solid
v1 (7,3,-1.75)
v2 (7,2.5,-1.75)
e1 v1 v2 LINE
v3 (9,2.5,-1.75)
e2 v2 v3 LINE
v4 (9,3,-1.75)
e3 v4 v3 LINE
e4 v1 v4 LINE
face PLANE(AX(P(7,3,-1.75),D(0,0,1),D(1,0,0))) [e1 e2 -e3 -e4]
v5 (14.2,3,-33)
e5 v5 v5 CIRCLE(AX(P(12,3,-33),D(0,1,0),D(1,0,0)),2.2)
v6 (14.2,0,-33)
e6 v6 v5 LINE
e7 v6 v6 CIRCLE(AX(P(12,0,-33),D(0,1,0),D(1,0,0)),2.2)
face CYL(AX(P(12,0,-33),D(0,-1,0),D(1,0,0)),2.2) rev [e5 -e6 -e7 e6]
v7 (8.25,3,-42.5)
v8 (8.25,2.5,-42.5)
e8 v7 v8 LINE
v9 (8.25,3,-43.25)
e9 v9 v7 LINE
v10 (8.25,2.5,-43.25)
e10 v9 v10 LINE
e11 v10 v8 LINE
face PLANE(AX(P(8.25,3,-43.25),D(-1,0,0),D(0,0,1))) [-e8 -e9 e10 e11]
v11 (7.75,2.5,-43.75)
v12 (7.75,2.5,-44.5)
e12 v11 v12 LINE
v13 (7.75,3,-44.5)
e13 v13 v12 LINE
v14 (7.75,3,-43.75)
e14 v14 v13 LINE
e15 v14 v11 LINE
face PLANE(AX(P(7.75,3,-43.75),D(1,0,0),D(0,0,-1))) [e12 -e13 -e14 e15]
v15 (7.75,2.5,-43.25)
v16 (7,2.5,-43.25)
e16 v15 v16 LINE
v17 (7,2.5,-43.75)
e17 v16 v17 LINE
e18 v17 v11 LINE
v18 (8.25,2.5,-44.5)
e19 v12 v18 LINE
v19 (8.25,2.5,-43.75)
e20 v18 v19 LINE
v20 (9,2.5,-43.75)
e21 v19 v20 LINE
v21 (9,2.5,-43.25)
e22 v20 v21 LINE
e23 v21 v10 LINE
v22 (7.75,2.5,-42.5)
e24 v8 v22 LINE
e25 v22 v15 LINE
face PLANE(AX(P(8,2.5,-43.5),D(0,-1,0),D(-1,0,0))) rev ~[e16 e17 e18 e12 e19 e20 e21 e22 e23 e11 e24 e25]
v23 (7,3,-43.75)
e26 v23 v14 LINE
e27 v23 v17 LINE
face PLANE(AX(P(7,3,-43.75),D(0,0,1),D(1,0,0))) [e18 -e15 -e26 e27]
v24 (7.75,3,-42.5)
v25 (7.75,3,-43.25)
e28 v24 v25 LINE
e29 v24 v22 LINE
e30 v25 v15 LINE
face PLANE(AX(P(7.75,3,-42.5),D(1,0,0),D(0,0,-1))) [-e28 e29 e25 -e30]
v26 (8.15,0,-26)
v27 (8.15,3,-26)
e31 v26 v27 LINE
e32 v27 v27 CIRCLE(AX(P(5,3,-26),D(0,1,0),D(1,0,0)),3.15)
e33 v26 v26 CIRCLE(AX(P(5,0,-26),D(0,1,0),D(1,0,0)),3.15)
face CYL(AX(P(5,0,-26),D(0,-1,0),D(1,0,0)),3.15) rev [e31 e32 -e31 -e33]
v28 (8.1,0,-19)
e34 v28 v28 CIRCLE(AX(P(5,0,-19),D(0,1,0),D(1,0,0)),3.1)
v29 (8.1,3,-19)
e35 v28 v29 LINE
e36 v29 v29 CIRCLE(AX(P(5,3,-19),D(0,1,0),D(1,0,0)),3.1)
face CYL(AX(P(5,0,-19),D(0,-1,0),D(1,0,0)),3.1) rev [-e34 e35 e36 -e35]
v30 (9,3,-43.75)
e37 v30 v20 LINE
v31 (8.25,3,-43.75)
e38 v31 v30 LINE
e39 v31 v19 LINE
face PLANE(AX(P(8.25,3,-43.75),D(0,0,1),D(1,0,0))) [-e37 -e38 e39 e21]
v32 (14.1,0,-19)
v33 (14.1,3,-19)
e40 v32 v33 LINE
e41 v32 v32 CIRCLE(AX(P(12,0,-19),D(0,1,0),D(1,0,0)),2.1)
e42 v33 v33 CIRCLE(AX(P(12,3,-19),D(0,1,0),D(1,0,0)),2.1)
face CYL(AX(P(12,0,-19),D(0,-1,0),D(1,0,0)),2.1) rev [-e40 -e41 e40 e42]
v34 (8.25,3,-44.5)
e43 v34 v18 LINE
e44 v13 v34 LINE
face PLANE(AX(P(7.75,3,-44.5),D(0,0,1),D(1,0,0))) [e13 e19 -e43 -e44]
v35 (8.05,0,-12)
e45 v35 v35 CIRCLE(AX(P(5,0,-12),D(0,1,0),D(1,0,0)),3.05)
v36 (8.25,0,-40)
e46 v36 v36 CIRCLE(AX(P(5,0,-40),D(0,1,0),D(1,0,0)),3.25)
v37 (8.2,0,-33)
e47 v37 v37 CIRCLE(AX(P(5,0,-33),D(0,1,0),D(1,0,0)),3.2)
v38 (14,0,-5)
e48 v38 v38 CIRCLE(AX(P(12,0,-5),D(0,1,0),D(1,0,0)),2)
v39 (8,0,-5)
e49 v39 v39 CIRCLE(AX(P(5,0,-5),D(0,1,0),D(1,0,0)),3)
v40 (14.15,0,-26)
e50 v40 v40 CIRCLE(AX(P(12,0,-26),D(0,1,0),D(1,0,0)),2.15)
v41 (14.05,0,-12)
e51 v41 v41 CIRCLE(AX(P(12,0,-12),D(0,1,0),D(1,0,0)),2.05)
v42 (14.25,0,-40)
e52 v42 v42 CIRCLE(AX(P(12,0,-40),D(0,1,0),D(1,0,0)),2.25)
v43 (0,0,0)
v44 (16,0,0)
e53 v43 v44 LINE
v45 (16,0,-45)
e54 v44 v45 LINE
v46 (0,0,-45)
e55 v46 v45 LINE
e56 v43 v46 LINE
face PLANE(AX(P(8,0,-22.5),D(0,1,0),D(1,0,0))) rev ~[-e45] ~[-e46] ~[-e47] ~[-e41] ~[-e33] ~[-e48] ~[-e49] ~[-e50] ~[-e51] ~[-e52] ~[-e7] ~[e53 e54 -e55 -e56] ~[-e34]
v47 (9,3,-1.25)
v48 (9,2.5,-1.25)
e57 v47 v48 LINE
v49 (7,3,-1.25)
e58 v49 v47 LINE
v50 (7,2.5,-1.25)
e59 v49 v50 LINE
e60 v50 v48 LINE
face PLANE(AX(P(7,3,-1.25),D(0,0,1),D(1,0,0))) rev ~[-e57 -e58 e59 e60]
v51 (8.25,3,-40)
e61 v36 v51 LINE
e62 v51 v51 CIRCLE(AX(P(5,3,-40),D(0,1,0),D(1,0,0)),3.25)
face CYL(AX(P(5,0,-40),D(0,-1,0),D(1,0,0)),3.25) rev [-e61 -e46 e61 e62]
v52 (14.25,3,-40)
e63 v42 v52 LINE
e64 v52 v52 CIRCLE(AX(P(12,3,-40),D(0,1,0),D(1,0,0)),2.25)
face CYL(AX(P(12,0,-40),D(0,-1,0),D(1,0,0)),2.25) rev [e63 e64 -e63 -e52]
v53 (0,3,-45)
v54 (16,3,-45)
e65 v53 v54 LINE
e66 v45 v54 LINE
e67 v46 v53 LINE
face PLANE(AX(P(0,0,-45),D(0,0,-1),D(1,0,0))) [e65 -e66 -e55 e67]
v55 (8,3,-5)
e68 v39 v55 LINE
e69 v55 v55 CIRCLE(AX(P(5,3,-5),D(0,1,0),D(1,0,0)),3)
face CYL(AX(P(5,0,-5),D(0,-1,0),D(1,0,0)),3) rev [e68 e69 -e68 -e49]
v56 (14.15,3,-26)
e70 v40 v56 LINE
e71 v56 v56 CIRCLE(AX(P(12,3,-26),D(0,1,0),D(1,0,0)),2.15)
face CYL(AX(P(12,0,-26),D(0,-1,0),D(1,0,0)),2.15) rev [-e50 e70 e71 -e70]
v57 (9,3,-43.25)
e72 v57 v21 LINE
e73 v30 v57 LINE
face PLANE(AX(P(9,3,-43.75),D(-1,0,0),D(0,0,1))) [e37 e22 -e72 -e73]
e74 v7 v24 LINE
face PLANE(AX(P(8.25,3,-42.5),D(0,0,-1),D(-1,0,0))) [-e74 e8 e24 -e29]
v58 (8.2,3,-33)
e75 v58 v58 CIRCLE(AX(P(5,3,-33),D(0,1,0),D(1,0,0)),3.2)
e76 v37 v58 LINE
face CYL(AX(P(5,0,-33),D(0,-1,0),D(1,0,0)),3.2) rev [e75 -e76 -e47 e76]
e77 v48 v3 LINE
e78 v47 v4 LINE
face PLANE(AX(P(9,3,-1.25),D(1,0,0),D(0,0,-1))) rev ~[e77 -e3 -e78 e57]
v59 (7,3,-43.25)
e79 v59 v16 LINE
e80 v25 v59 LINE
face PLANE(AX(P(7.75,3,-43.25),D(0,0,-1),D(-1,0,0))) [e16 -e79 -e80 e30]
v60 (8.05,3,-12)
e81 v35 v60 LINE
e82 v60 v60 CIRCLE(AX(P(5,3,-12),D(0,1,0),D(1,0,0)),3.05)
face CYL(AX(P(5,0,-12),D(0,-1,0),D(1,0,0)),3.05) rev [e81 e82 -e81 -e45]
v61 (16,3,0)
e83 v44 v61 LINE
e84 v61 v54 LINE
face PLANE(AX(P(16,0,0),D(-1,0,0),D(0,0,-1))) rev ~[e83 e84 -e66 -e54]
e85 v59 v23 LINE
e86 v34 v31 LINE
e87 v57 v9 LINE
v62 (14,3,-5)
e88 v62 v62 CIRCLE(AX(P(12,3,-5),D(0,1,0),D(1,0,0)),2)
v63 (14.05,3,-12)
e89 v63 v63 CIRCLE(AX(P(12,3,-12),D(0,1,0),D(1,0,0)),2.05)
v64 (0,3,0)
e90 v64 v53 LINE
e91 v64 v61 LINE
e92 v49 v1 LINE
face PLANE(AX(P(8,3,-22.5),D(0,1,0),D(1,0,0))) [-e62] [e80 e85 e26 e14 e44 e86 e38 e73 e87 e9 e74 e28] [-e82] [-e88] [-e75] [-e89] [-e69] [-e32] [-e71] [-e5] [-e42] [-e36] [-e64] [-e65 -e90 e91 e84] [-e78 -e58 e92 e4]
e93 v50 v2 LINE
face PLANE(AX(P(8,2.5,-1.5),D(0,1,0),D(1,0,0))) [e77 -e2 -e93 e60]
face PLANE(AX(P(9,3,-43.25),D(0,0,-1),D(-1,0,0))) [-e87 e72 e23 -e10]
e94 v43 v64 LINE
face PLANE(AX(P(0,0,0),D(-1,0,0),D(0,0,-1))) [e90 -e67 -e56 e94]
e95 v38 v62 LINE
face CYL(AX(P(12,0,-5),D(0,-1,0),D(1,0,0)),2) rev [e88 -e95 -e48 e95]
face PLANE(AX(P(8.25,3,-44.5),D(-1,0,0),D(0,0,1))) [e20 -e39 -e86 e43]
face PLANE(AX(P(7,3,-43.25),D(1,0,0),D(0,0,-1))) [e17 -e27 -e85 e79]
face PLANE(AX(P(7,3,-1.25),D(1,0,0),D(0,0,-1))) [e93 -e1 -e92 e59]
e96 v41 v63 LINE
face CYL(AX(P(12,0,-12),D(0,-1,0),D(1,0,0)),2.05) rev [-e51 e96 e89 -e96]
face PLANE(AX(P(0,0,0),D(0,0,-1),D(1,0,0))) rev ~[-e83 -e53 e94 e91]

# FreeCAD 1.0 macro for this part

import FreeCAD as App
import Part
import Sketcher
Q = App.Units.Quantity


def add_polygon(sketch, points):
    """Adds a closed chain of lines whose ends are joined by coincident constraints."""
    first, n = sketch.GeometryCount, len(points)
    for a, b in zip(points, points[1:] + points[:1]):
        sketch.addGeometry(Part.LineSegment(App.Vector(*a, 0), App.Vector(*b, 0)), False)
    for i in range(n):
        sketch.addConstraint(Sketcher.Constraint("Coincident", first + i, 2, first + (i + 1) % n, 1))

doc = App.newDocument("Part")
body = doc.addObject("PartDesign::Body", "Body")

# Sketch on XZ plane
sketch1 = body.newObject("Sketcher::SketchObject", "Sketch")
sketch1.AttachmentSupport = (doc.getObject("XZ_Plane"), [""])
sketch1.MapMode = "FlatFace"
add_polygon(sketch1, [(0, -45), (0, 0), (16, 0), (16, -45)])  # lines 0-3
sketch1.addGeometry(Part.Circle(App.Vector(5, -5, 0), App.Vector(0, 0, 1), 3), False)  # 4
sketch1.addGeometry(Part.Circle(App.Vector(5, -12, 0), App.Vector(0, 0, 1), 3), False)  # 5
sketch1.addGeometry(Part.Circle(App.Vector(5, -19, 0), App.Vector(0, 0, 1), 3.1), False)  # 6
sketch1.addGeometry(Part.Circle(App.Vector(12, -5, 0), App.Vector(0, 0, 1), 2), False)  # 7
sketch1.addGeometry(Part.Circle(App.Vector(12, -12, 0), App.Vector(0, 0, 1), 2), False)  # 8
sketch1.addGeometry(Part.Circle(App.Vector(12, -19, 0), App.Vector(0, 0, 1), 2.1), False)  # 9
sketch1.addGeometry(Part.Circle(App.Vector(5, -26, 0), App.Vector(0, 0, 1), 3.1), False)  # 10
sketch1.addGeometry(Part.Circle(App.Vector(5, -33, 0), App.Vector(0, 0, 1), 3.2), False)  # 11
sketch1.addGeometry(Part.Circle(App.Vector(5, -40, 0), App.Vector(0, 0, 1), 3.2), False)  # 12
sketch1.addGeometry(Part.Circle(App.Vector(12, -26, 0), App.Vector(0, 0, 1), 2.1), False)  # 13
sketch1.addGeometry(Part.Circle(App.Vector(12, -33, 0), App.Vector(0, 0, 1), 2.2), False)  # 14
sketch1.addGeometry(Part.Circle(App.Vector(12, -40, 0), App.Vector(0, 0, 1), 2.2), False)  # 15
sketch1.addConstraint([
    Sketcher.Constraint("Vertical", 0),
    Sketcher.Constraint("Horizontal", 1),
    Sketcher.Constraint("Vertical", 2),
    Sketcher.Constraint("Horizontal", 3),
    Sketcher.Constraint("Coincident", 0, 2, -1, 1),
    Sketcher.Constraint("Horizontal", 4, 3, 7, 3),
    Sketcher.Constraint("Horizontal", 5, 3, 8, 3),
    Sketcher.Constraint("Horizontal", 6, 3, 9, 3),
    Sketcher.Constraint("Horizontal", 10, 3, 13, 3),
    Sketcher.Constraint("Horizontal", 11, 3, 14, 3),
    Sketcher.Constraint("Horizontal", 12, 3, 15, 3),
    Sketcher.Constraint("Vertical", 4, 3, 5, 3),
    Sketcher.Constraint("Vertical", 5, 3, 6, 3),
    Sketcher.Constraint("Vertical", 7, 3, 8, 3),
    Sketcher.Constraint("Vertical", 8, 3, 9, 3),
    Sketcher.Constraint("Vertical", 6, 3, 10, 3),
    Sketcher.Constraint("Vertical", 10, 3, 11, 3),
    Sketcher.Constraint("Vertical", 11, 3, 12, 3),
    Sketcher.Constraint("Vertical", 9, 3, 13, 3),
    Sketcher.Constraint("Vertical", 13, 3, 14, 3),
    Sketcher.Constraint("Vertical", 14, 3, 15, 3),
    Sketcher.Constraint("Diameter", 4, Q("6 mm")),
    Sketcher.Constraint("Diameter", 7, Q("4 mm")),
    Sketcher.Constraint("Diameter", 5, Q("6.1 mm")),
    Sketcher.Constraint("Diameter", 6, Q("6.2 mm")),
    Sketcher.Constraint("Diameter", 8, Q("4.1 mm")),
    Sketcher.Constraint("Diameter", 9, Q("4.2 mm")),
    Sketcher.Constraint("Diameter", 10, Q("6.3 mm")),
    Sketcher.Constraint("Diameter", 11, Q("6.4 mm")),
    Sketcher.Constraint("Diameter", 12, Q("6.5 mm")),
    Sketcher.Constraint("Diameter", 13, Q("4.3 mm")),
    Sketcher.Constraint("Diameter", 14, Q("4.4 mm")),
    Sketcher.Constraint("Diameter", 15, Q("4.5 mm")),
    Sketcher.Constraint("DistanceX", 1, 1, 1, 2, Q("16 mm")),
    Sketcher.Constraint("DistanceY", 0, 1, 0, 2, Q("45 mm")),
    Sketcher.Constraint("DistanceX", -1, 1, 4, 3, Q("5 mm")),
    Sketcher.Constraint("DistanceY", 4, 3, -1, 1, Q("5 mm")),
    Sketcher.Constraint("DistanceY", 5, 3, -1, 1, Q("12 mm")),
    Sketcher.Constraint("DistanceY", 6, 3, -1, 1, Q("19 mm")),
    Sketcher.Constraint("DistanceX", -1, 1, 7, 3, Q("12 mm")),
    Sketcher.Constraint("DistanceY", 10, 3, -1, 1, Q("26 mm")),
    Sketcher.Constraint("DistanceY", 11, 3, -1, 1, Q("33 mm")),
    Sketcher.Constraint("DistanceY", 12, 3, -1, 1, Q("40 mm")),
])
pad1 = body.newObject("PartDesign::Pad", "Pad")
pad1.Profile = sketch1
pad1.Length = 3
pad1.Reversed = True

# Sketch on XZ plane
sketch2 = body.newObject("Sketcher::SketchObject", "Sketch001")
sketch2.AttachmentSupport = (doc.getObject("XZ_Plane"), [""])
sketch2.MapMode = "FlatFace"
sketch2.AttachmentOffset = App.Placement(App.Vector(0, 0, -3), App.Rotation())
add_polygon(sketch2, [(7.8, -44.5), (7.8, -43.8), (7, -43.8), (7, -43.2), (7.8, -43.2), (7.8, -42.5), (8.2, -42.5), (8.2, -43.2), (9, -43.2), (9, -43.8), (8.2, -43.8), (8.2, -44.5)])  # lines 0-11
add_polygon(sketch2, [(7, -1.8), (7, -1.2), (9, -1.2), (9, -1.8)])  # lines 12-15
sketch2.addConstraint([
    Sketcher.Constraint("Vertical", 0),
    Sketcher.Constraint("Horizontal", 1),
    Sketcher.Constraint("Vertical", 2),
    Sketcher.Constraint("Horizontal", 3),
    Sketcher.Constraint("Vertical", 4),
    Sketcher.Constraint("Horizontal", 5),
    Sketcher.Constraint("Vertical", 6),
    Sketcher.Constraint("Horizontal", 7),
    Sketcher.Constraint("Vertical", 8),
    Sketcher.Constraint("Horizontal", 9),
    Sketcher.Constraint("Vertical", 10),
    Sketcher.Constraint("Horizontal", 11),
    Sketcher.Constraint("Vertical", 12),
    Sketcher.Constraint("Horizontal", 13),
    Sketcher.Constraint("Vertical", 14),
    Sketcher.Constraint("Horizontal", 15),
    Sketcher.Constraint("Horizontal", 3, 2, 6, 2),
    Sketcher.Constraint("Horizontal", 1, 2, 8, 2),
    Sketcher.Constraint("Vertical", 0, 2, 3, 2),
    Sketcher.Constraint("Vertical", 6, 2, 9, 2),
    Sketcher.Constraint("Vertical", 2, 2, 12, 2),
    Sketcher.Constraint("Vertical", 8, 2, 13, 2),
    Sketcher.Constraint("Equal", 3, 7),
    Sketcher.Constraint("Equal", 9, 0),
    Sketcher.Constraint("Equal", 11, 2),
    Sketcher.Constraint("Equal", 0, 4),
    Sketcher.Constraint("Equal", 8, 12),
    Sketcher.Constraint("DistanceX", 13, 1, 13, 2, Q("2 mm")),
    Sketcher.Constraint("DistanceX", 5, 1, 5, 2, Q("0.5 mm")),
    Sketcher.Constraint("DistanceX", -1, 1, 1, 2, Q("7 mm")),
    Sketcher.Constraint("DistanceY", 2, 2, 12, 2, Q("42 mm")),
    Sketcher.Constraint("DistanceY", 4, 2, -1, 1, Q("42.5 mm")),
])
pocket1 = body.newObject("PartDesign::Pocket", "Pocket")
pocket1.Profile = sketch2
pocket1.Length = 0.5
pocket1.Reversed = True

doc.recompute()
